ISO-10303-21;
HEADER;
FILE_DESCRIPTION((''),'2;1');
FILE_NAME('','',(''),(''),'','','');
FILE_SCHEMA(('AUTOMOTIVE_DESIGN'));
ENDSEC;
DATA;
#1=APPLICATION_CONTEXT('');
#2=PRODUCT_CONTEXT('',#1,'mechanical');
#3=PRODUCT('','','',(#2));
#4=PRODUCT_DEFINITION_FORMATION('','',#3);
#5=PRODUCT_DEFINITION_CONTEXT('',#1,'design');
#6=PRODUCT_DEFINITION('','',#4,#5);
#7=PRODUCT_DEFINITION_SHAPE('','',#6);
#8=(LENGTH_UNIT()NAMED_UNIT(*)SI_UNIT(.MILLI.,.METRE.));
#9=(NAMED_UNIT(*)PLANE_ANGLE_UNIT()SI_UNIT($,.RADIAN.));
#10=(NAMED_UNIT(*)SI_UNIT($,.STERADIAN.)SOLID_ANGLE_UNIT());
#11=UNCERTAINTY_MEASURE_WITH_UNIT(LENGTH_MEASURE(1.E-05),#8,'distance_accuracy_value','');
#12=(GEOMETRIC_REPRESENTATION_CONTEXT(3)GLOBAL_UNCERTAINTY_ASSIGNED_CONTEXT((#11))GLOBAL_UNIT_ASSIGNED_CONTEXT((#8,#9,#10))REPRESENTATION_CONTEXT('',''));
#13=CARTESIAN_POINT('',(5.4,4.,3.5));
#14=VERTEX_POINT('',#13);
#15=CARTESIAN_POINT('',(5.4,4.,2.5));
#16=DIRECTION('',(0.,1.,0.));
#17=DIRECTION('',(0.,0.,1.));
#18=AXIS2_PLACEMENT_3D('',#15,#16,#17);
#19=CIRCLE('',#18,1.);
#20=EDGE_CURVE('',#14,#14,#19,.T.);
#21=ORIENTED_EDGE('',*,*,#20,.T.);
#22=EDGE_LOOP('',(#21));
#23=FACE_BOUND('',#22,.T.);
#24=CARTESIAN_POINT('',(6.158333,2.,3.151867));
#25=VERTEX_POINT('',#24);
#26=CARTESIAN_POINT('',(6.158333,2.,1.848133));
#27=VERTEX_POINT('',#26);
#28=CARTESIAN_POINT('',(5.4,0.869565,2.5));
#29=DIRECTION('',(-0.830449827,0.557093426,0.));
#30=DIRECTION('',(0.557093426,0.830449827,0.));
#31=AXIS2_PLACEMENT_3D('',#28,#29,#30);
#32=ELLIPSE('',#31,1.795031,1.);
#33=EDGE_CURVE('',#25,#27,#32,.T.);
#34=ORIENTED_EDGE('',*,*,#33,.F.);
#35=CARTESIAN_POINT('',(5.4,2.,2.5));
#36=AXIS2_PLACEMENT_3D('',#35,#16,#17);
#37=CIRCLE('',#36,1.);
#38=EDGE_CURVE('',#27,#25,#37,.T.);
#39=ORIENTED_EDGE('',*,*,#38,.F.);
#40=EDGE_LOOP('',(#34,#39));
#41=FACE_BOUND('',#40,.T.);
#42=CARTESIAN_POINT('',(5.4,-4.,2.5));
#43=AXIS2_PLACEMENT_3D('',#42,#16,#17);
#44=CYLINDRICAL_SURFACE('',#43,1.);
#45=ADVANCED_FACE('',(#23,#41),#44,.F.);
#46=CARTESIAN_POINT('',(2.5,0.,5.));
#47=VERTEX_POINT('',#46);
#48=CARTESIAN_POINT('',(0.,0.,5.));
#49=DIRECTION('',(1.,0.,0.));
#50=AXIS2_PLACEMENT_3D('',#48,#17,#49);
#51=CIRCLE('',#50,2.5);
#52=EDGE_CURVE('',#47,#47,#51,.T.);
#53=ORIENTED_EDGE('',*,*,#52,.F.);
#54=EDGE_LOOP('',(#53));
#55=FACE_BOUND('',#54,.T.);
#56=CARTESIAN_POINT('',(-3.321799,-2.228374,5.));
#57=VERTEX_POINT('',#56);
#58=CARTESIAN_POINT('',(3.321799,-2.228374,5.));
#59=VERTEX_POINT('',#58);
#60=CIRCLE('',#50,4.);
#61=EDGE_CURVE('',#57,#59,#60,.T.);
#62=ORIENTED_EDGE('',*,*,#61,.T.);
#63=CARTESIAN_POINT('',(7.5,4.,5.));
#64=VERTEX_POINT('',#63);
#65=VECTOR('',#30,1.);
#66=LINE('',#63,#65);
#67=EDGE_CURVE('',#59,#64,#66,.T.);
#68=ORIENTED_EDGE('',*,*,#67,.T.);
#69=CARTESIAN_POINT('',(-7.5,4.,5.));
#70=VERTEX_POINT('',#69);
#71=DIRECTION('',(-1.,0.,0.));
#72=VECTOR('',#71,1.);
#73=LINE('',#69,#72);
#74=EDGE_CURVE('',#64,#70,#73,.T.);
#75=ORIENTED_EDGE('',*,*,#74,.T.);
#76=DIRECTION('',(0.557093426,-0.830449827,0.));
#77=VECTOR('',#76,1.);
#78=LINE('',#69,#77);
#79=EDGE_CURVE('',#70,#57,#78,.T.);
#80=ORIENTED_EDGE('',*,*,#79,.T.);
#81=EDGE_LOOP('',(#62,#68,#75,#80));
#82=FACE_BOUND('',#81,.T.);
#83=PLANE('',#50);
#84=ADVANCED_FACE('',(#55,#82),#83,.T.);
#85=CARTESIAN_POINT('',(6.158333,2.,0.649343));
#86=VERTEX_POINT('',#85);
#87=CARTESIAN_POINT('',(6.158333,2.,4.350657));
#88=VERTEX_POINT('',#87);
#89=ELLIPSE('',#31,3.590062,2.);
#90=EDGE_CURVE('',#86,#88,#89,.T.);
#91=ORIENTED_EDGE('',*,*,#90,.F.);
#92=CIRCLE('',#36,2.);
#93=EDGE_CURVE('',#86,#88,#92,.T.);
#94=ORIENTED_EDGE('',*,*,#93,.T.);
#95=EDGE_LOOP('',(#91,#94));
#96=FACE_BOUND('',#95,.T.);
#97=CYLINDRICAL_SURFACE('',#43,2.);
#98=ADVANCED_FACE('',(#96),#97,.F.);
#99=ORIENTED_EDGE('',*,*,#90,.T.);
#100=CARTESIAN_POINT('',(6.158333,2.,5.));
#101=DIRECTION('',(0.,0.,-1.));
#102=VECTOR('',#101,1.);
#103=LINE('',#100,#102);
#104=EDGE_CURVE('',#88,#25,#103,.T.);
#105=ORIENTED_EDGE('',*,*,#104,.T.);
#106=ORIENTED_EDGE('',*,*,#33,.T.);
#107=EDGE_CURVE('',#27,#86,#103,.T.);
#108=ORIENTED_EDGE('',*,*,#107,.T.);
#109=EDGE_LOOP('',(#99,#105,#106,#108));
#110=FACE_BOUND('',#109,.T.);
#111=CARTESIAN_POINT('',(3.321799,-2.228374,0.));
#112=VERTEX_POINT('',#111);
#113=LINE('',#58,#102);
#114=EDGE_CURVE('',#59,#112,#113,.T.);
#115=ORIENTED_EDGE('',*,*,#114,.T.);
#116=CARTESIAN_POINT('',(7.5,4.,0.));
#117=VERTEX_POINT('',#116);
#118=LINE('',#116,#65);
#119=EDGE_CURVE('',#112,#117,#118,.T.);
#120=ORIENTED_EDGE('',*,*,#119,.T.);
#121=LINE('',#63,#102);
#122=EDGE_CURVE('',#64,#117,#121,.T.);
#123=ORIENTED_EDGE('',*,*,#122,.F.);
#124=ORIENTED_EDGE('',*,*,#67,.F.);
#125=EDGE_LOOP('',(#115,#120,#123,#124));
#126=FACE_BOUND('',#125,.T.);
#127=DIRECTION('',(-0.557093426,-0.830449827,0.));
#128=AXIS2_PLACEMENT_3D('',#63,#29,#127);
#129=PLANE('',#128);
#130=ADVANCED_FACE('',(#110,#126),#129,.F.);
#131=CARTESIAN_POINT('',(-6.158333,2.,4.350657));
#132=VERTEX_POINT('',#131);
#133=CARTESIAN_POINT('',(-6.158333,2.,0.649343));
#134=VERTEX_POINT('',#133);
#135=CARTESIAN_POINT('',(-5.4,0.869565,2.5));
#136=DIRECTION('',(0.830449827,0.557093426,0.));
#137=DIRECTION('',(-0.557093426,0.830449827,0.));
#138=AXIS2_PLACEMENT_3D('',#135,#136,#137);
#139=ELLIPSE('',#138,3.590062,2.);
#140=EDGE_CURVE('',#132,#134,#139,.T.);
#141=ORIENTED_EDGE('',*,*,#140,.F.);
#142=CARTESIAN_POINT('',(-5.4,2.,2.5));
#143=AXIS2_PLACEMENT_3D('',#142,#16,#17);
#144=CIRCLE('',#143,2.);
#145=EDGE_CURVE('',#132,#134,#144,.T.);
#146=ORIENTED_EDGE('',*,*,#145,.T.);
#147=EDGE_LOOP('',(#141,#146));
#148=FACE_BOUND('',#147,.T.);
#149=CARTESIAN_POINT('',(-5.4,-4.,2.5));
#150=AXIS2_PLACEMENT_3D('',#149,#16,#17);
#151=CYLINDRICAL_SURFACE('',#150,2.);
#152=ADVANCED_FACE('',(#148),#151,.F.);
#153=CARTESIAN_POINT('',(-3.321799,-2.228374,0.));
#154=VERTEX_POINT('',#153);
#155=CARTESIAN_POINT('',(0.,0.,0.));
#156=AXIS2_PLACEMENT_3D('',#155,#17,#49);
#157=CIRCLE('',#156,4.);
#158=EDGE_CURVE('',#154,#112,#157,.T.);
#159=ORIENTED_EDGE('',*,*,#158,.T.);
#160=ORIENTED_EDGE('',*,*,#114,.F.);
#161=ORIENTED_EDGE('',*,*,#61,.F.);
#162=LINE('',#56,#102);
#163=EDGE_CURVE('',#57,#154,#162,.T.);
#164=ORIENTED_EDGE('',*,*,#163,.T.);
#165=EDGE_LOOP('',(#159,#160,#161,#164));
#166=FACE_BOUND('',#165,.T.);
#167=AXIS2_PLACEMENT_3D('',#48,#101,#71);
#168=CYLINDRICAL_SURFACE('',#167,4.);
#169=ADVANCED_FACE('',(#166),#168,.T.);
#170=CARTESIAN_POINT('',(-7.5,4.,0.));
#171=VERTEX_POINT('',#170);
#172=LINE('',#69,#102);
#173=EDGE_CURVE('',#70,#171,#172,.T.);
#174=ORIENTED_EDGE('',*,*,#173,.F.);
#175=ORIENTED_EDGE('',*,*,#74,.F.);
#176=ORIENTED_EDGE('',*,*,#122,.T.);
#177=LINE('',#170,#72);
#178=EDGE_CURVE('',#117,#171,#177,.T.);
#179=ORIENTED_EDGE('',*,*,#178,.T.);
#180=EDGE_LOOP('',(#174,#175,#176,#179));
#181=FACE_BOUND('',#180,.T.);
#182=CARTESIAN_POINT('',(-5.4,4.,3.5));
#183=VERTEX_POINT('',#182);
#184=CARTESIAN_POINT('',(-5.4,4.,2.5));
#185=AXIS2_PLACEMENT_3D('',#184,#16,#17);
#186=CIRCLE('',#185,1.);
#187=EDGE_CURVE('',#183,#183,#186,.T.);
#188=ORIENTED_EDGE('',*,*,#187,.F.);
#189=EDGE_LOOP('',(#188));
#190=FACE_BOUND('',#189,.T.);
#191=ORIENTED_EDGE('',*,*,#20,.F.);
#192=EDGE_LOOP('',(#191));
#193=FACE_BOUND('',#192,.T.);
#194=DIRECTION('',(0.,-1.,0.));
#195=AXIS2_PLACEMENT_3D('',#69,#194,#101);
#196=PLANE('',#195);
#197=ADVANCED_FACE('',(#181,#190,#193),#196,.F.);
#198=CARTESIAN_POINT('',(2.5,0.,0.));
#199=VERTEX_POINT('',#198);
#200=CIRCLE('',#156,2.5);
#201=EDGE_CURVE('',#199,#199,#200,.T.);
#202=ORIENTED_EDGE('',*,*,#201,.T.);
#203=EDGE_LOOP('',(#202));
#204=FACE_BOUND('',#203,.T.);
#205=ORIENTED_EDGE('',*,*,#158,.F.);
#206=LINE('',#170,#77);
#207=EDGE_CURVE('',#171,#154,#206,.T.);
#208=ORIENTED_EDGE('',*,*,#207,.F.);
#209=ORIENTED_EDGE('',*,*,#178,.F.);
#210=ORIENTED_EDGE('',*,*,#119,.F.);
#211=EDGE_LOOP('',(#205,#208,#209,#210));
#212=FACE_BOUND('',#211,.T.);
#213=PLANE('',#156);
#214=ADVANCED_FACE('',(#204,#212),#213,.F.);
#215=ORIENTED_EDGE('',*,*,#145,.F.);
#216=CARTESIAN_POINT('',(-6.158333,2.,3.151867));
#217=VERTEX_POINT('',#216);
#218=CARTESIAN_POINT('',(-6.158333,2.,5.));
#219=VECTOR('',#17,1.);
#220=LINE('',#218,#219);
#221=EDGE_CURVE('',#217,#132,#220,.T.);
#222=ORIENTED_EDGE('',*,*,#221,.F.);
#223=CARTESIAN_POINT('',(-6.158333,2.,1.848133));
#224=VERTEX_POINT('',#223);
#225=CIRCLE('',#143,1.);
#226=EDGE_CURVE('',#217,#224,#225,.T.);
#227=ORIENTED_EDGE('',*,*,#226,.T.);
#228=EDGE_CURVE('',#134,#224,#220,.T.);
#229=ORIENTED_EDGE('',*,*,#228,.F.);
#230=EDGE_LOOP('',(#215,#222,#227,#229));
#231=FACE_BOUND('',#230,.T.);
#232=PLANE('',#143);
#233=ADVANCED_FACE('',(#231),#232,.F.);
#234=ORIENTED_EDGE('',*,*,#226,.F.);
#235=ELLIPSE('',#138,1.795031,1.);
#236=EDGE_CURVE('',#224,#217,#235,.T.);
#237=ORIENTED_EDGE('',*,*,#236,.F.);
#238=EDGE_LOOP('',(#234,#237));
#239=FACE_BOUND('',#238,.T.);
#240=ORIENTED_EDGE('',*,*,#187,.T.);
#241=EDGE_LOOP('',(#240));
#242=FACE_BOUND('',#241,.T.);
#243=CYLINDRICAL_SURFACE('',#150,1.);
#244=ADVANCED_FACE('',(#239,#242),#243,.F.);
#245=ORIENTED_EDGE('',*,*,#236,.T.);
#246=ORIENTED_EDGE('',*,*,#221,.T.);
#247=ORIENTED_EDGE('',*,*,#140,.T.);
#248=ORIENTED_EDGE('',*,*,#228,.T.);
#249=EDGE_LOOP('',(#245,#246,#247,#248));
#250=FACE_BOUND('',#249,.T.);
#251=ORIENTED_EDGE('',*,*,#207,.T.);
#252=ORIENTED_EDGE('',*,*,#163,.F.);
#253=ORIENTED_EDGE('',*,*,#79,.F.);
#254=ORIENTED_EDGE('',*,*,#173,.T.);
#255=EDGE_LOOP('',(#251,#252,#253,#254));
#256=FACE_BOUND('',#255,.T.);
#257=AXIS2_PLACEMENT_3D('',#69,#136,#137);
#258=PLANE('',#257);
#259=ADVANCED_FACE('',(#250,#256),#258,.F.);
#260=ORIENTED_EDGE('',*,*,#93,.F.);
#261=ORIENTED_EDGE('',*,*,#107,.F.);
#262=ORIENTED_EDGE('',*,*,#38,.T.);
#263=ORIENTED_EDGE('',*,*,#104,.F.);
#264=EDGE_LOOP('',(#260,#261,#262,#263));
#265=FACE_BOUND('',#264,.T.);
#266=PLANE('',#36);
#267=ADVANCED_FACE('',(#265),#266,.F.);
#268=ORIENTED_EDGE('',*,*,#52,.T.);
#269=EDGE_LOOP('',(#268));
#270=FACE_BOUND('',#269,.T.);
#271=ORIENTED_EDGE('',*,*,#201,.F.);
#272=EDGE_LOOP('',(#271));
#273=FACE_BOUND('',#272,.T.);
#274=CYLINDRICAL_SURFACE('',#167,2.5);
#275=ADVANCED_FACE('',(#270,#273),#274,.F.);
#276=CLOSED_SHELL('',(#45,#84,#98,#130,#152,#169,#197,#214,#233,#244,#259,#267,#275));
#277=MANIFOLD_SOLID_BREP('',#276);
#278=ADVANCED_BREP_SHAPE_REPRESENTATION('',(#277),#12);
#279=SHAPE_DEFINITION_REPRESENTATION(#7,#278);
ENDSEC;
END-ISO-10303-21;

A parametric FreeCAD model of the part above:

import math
import FreeCAD as App
import Part
import Sketcher
from FreeCAD import Vector
Q = App.Units.Quantity

doc = App.newDocument("Part")
body = doc.addObject("PartDesign::Body", "Body")

sketch1 = doc.addObject("Sketcher::SketchObject", "Sketch")
body.addObject(sketch1)
sketch1.AttachmentSupport = (doc.XY_Plane, [""])
sketch1.MapMode = "FlatFace"
sketch1.addGeometry(Part.LineSegment(Vector(7.5, 4, 0), Vector(-7.5, 4, 0)), False)
sketch1.addGeometry(Part.LineSegment(Vector(-7.5, 4, 0), Vector(-3.3, -2.2, 0)), False)
sketch1.addGeometry(Part.ArcOfCircle(Part.Circle(Vector(0, 0, 0), Vector(0, 0, 1), 4), math.radians(-146), math.radians(-34)), False)
sketch1.addGeometry(Part.LineSegment(Vector(3.3, -2.2, 0), Vector(7.5, 4, 0)), False)
sketch1.addGeometry(Part.Circle(Vector(0, 0, 0), Vector(0, 0, 1), 2.5), False)
sketch1.addConstraint(Sketcher.Constraint("Coincident", 0, 2, 1, 1))
sketch1.addConstraint(Sketcher.Constraint("Tangent", 1, 2, 2, 1))
sketch1.addConstraint(Sketcher.Constraint("Tangent", 2, 2, 3, 1))
sketch1.addConstraint(Sketcher.Constraint("Coincident", 3, 2, 0, 1))
sketch1.addConstraint(Sketcher.Constraint("Horizontal", 0))
sketch1.addConstraint(Sketcher.Constraint("Coincident", 2, 3, -1, 1))
sketch1.addConstraint(Sketcher.Constraint("Coincident", 4, 3, -1, 1))
sketch1.addConstraint(Sketcher.Constraint("Horizontal", 1, 2, 2, 2))
sketch1.addConstraint(Sketcher.Constraint("Diameter", 4, Q("5 mm")))
sketch1.addConstraint(Sketcher.Constraint("Radius", 2, Q("4 mm")))
sketch1.addConstraint(Sketcher.Constraint("DistanceX", 0, 2, 0, 1, Q("15 mm")))
sketch1.addConstraint(Sketcher.Constraint("DistanceY", -1, 1, 0, 2, Q("4 mm")))
pad1 = doc.addObject("PartDesign::Pad", "Pad")
body.addObject(pad1)
pad1.Profile = sketch1
pad1.Length = 5

sketch2 = doc.addObject("Sketcher::SketchObject", "Sketch001")
body.addObject(sketch2)
sketch2.AttachmentSupport = (doc.XZ_Plane, [""])
sketch2.MapMode = "FlatFace"
sketch2.AttachmentOffset = App.Placement(Vector(0, 0, -2), App.Rotation())
sketch2.addGeometry(Part.Circle(Vector(-5.4, 2.5, 0), Vector(0, 0, 1), 2), False)
sketch2.addGeometry(Part.Circle(Vector(-5.4, 2.5, 0), Vector(0, 0, 1), 1), False)
sketch2.addGeometry(Part.Circle(Vector(5.4, 2.5, 0), Vector(0, 0, 1), 2), False)
sketch2.addGeometry(Part.Circle(Vector(5.4, 2.5, 0), Vector(0, 0, 1), 1), False)
sketch2.addConstraint(Sketcher.Constraint("Coincident", 1, 3, 0, 3))
sketch2.addConstraint(Sketcher.Constraint("Coincident", 3, 3, 2, 3))
sketch2.addConstraint(Sketcher.Constraint("Equal", 0, 2))
sketch2.addConstraint(Sketcher.Constraint("Equal", 1, 3))
sketch2.addConstraint(Sketcher.Constraint("Symmetric", 0, 3, 2, 3, -2))
sketch2.addConstraint(Sketcher.Constraint("Diameter", 0, Q("4 mm")))
sketch2.addConstraint(Sketcher.Constraint("Diameter", 1, Q("2 mm")))
sketch2.addConstraint(Sketcher.Constraint("DistanceX", 0, 3, -1, 1, Q("5.4 mm")))
sketch2.addConstraint(Sketcher.Constraint("DistanceY", -1, 1, 0, 3, Q("2.5 mm")))
pocket1 = doc.addObject("PartDesign::Pocket", "Pocket")
body.addObject(pocket1)
pocket1.Profile = sketch2
pocket1.Length = 11.051971
pocket1.Reversed = True

sketch3 = doc.addObject("Sketcher::SketchObject", "Sketch002")
body.addObject(sketch3)
sketch3.AttachmentSupport = (doc.XZ_Plane, [""])
sketch3.MapMode = "FlatFace"
sketch3.AttachmentOffset = App.Placement(Vector(0, 0, -4), App.Rotation())
sketch3.addGeometry(Part.Circle(Vector(-5.4, 2.5, 0), Vector(0, 0, 1), 1), False)
sketch3.addGeometry(Part.Circle(Vector(5.4, 2.5, 0), Vector(0, 0, 1), 1), False)
sketch3.addConstraint(Sketcher.Constraint("Equal", 0, 1))
sketch3.addConstraint(Sketcher.Constraint("Symmetric", 0, 3, 1, 3, -2))
sketch3.addConstraint(Sketcher.Constraint("Diameter", 0, Q("2 mm")))
sketch3.addConstraint(Sketcher.Constraint("DistanceX", 0, 3, -1, 1, Q("5.4 mm")))
sketch3.addConstraint(Sketcher.Constraint("DistanceY", -1, 1, 0, 3, Q("2.5 mm")))
pocket2 = doc.addObject("PartDesign::Pocket", "Pocket001")
body.addObject(pocket2)
pocket2.Profile = sketch3
pocket2.Type = "ThroughAll"
pocket2.Reversed = True

doc.recompute()
